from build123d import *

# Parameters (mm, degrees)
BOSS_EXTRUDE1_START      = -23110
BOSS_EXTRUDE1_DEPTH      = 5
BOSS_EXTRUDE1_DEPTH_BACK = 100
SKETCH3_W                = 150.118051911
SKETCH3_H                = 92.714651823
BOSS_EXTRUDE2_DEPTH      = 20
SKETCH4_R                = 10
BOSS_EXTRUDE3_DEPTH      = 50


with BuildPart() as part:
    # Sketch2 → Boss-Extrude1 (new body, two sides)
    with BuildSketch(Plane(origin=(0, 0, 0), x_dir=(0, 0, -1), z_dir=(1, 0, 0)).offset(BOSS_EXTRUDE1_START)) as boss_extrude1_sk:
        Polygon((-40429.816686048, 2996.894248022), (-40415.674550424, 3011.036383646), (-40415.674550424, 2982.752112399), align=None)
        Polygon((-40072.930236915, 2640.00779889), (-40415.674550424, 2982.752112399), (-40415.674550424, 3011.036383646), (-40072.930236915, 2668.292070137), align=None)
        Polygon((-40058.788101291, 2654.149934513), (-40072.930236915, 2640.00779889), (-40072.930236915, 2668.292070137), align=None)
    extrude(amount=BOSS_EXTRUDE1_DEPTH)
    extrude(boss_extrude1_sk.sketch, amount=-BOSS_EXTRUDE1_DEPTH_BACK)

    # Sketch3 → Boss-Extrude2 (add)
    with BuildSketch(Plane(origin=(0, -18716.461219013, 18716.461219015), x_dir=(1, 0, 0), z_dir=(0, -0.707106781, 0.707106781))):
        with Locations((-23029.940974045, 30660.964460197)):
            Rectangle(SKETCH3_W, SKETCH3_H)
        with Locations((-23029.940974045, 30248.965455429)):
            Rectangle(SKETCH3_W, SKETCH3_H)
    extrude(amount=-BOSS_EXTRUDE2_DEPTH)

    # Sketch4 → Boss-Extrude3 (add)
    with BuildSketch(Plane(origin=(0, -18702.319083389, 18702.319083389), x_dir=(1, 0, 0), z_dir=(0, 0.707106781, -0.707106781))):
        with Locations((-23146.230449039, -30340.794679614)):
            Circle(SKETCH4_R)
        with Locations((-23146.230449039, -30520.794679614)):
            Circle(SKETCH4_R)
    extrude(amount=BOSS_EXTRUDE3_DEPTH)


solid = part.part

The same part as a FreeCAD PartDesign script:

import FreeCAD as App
import Part
import Sketcher
Q = App.Units.Quantity

doc = App.newDocument("Part")
body = doc.addObject("PartDesign::Body", "Body")

sketch1 = doc.addObject("Sketcher::SketchObject", "Sketch")
body.addObject(sketch1)
sketch1.AttachmentSupport = (doc.YZ_Plane, [""])
sketch1.MapMode = "FlatFace"
sketch1.AttachmentOffset = App.Placement(App.Vector(0, 0, -23110), App.Rotation())
sketch1.addGeometry(Part.LineSegment(App.Vector(3011, 40416, 0), App.Vector(2997, 40430, 0)), False)
sketch1.addGeometry(Part.LineSegment(App.Vector(2997, 40430, 0), App.Vector(2983, 40416, 0)), False)
sketch1.addGeometry(Part.LineSegment(App.Vector(2983, 40416, 0), App.Vector(2640, 40073, 0)), False)
sketch1.addGeometry(Part.LineSegment(App.Vector(2640, 40073, 0), App.Vector(2654, 40059, 0)), False)
sketch1.addGeometry(Part.LineSegment(App.Vector(2654, 40059, 0), App.Vector(3011, 40416, 0)), False)
sketch1.addConstraint(Sketcher.Constraint("Coincident", 0, 2, 1, 1))
sketch1.addConstraint(Sketcher.Constraint("Coincident", 1, 2, 2, 1))
sketch1.addConstraint(Sketcher.Constraint("Coincident", 2, 2, 3, 1))
sketch1.addConstraint(Sketcher.Constraint("Coincident", 3, 2, 4, 1))
sketch1.addConstraint(Sketcher.Constraint("Coincident", 4, 2, 0, 1))
sketch1.addConstraint(Sketcher.Constraint("Perpendicular", 0, 1))
sketch1.addConstraint(Sketcher.Constraint("Parallel", 1, 2))
sketch1.addConstraint(Sketcher.Constraint("Perpendicular", 2, 3))
sketch1.addConstraint(Sketcher.Constraint("Perpendicular", 3, 4))
sketch1.addConstraint(Sketcher.Constraint("Horizontal", 1, 2, 4, 2))
sketch1.addConstraint(Sketcher.Constraint("Equal", 0, 1))
sketch1.addConstraint(Sketcher.Constraint("Distance", 0, Q("20 mm")))
sketch1.addConstraint(Sketcher.Constraint("DistanceX", -1, 1, 2, 2, Q("2640.007799 mm")))
sketch1.addConstraint(Sketcher.Constraint("DistanceY", -1, 1, 3, 2, Q("40058.788101 mm")))
sketch1.addConstraint(Sketcher.Constraint("DistanceX", -1, 1, 0, 2, Q("2996.894248 mm")))
pad1 = doc.addObject("PartDesign::Pad", "Pad")
body.addObject(pad1)
pad1.Profile = sketch1
pad1.Type = "TwoLengths"
pad1.Length = 5
pad1.Length2 = 100

sketch2 = doc.addObject("Sketcher::SketchObject", "Sketch001")
body.addObject(sketch2)
sketch2.Placement = App.Placement(App.Vector(0, -18716.461219, 18716.461219), App.Rotation(App.Vector(1, 0, 0), App.Vector(0, 0.707106781, 0.707106781), App.Vector(0, -0.707106781, 0.707106781), "ZXY"))
sketch2.addGeometry(Part.LineSegment(App.Vector(-23105, 30707, 0), App.Vector(-23105, 30615, 0)), False)
sketch2.addGeometry(Part.LineSegment(App.Vector(-23105, 30615, 0), App.Vector(-22955, 30615, 0)), False)
sketch2.addGeometry(Part.LineSegment(App.Vector(-22955, 30615, 0), App.Vector(-22955, 30707, 0)), False)
sketch2.addGeometry(Part.LineSegment(App.Vector(-22955, 30707, 0), App.Vector(-23105, 30707, 0)), False)
sketch2.addGeometry(Part.LineSegment(App.Vector(-23105, 30295, 0), App.Vector(-23105, 30203, 0)), False)
sketch2.addGeometry(Part.LineSegment(App.Vector(-23105, 30203, 0), App.Vector(-22955, 30203, 0)), False)
sketch2.addGeometry(Part.LineSegment(App.Vector(-22955, 30203, 0), App.Vector(-22955, 30295, 0)), False)
sketch2.addGeometry(Part.LineSegment(App.Vector(-22955, 30295, 0), App.Vector(-23105, 30295, 0)), False)
sketch2.addConstraint(Sketcher.Constraint("Coincident", 0, 2, 1, 1))
sketch2.addConstraint(Sketcher.Constraint("Coincident", 1, 2, 2, 1))
sketch2.addConstraint(Sketcher.Constraint("Coincident", 2, 2, 3, 1))
sketch2.addConstraint(Sketcher.Constraint("Coincident", 3, 2, 0, 1))
sketch2.addConstraint(Sketcher.Constraint("Coincident", 4, 2, 5, 1))
sketch2.addConstraint(Sketcher.Constraint("Coincident", 5, 2, 6, 1))
sketch2.addConstraint(Sketcher.Constraint("Coincident", 6, 2, 7, 1))
sketch2.addConstraint(Sketcher.Constraint("Coincident", 7, 2, 4, 1))
sketch2.addConstraint(Sketcher.Constraint("Vertical", 0))
sketch2.addConstraint(Sketcher.Constraint("Horizontal", 1))
sketch2.addConstraint(Sketcher.Constraint("Vertical", 2))
sketch2.addConstraint(Sketcher.Constraint("Horizontal", 3))
sketch2.addConstraint(Sketcher.Constraint("Vertical", 4))
sketch2.addConstraint(Sketcher.Constraint("Horizontal", 5))
sketch2.addConstraint(Sketcher.Constraint("Vertical", 6))
sketch2.addConstraint(Sketcher.Constraint("Horizontal", 7))
sketch2.addConstraint(Sketcher.Constraint("Vertical", 3, 2, 4, 2))
sketch2.addConstraint(Sketcher.Constraint("Vertical", 2, 2, 5, 2))
sketch2.addConstraint(Sketcher.Constraint("Equal", 2, 4))
sketch2.addConstraint(Sketcher.Constraint("DistanceX", 0, 2, -1, 1, Q("23105 mm")))
sketch2.addConstraint(Sketcher.Constraint("DistanceX", 1, 1, 1, 2, Q("150.118052 mm")))
sketch2.addConstraint(Sketcher.Constraint("DistanceY", 0, 2, 0, 1, Q("92.714652 mm")))
sketch2.addConstraint(Sketcher.Constraint("DistanceY", -1, 1, 0, 2, Q("30614.607118 mm")))
sketch2.addConstraint(Sketcher.Constraint("DistanceY", -1, 1, 4, 2, Q("30202.608114 mm")))
pad2 = doc.addObject("PartDesign::Pad", "Pad001")
body.addObject(pad2)
pad2.Profile = sketch2
pad2.Length = 20
pad2.Reversed = True

sketch3 = doc.addObject("Sketcher::SketchObject", "Sketch002")
body.addObject(sketch3)
sketch3.Placement = App.Placement(App.Vector(0, -18702.319083, 18702.319083), App.Rotation(App.Vector(1, 0, 0), App.Vector(0, -0.707106781, -0.707106781), App.Vector(0, 0.707106781, -0.707106781), "ZXY"))
sketch3.addGeometry(Part.Circle(App.Vector(-23146, -30341, 0), App.Vector(0, 0, 1), 10), False)
sketch3.addGeometry(Part.Circle(App.Vector(-23146, -30521, 0), App.Vector(0, 0, 1), 10), False)
sketch3.addConstraint(Sketcher.Constraint("Equal", 0, 1))
sketch3.addConstraint(Sketcher.Constraint("Vertical", 0, 3, 1, 3))
sketch3.addConstraint(Sketcher.Constraint("Diameter", 0, Q("20 mm")))
sketch3.addConstraint(Sketcher.Constraint("DistanceY", 1, 3, 0, 3, Q("180 mm")))
sketch3.addConstraint(Sketcher.Constraint("DistanceX", 0, 3, -1, 1, Q("23146.230449 mm")))
sketch3.addConstraint(Sketcher.Constraint("DistanceY", 0, 3, -1, 1, Q("30340.794664 mm")))
pad3 = doc.addObject("PartDesign::Pad", "Pad002")
body.addObject(pad3)
pad3.Profile = sketch3
pad3.Length = 50

doc.recompute()
